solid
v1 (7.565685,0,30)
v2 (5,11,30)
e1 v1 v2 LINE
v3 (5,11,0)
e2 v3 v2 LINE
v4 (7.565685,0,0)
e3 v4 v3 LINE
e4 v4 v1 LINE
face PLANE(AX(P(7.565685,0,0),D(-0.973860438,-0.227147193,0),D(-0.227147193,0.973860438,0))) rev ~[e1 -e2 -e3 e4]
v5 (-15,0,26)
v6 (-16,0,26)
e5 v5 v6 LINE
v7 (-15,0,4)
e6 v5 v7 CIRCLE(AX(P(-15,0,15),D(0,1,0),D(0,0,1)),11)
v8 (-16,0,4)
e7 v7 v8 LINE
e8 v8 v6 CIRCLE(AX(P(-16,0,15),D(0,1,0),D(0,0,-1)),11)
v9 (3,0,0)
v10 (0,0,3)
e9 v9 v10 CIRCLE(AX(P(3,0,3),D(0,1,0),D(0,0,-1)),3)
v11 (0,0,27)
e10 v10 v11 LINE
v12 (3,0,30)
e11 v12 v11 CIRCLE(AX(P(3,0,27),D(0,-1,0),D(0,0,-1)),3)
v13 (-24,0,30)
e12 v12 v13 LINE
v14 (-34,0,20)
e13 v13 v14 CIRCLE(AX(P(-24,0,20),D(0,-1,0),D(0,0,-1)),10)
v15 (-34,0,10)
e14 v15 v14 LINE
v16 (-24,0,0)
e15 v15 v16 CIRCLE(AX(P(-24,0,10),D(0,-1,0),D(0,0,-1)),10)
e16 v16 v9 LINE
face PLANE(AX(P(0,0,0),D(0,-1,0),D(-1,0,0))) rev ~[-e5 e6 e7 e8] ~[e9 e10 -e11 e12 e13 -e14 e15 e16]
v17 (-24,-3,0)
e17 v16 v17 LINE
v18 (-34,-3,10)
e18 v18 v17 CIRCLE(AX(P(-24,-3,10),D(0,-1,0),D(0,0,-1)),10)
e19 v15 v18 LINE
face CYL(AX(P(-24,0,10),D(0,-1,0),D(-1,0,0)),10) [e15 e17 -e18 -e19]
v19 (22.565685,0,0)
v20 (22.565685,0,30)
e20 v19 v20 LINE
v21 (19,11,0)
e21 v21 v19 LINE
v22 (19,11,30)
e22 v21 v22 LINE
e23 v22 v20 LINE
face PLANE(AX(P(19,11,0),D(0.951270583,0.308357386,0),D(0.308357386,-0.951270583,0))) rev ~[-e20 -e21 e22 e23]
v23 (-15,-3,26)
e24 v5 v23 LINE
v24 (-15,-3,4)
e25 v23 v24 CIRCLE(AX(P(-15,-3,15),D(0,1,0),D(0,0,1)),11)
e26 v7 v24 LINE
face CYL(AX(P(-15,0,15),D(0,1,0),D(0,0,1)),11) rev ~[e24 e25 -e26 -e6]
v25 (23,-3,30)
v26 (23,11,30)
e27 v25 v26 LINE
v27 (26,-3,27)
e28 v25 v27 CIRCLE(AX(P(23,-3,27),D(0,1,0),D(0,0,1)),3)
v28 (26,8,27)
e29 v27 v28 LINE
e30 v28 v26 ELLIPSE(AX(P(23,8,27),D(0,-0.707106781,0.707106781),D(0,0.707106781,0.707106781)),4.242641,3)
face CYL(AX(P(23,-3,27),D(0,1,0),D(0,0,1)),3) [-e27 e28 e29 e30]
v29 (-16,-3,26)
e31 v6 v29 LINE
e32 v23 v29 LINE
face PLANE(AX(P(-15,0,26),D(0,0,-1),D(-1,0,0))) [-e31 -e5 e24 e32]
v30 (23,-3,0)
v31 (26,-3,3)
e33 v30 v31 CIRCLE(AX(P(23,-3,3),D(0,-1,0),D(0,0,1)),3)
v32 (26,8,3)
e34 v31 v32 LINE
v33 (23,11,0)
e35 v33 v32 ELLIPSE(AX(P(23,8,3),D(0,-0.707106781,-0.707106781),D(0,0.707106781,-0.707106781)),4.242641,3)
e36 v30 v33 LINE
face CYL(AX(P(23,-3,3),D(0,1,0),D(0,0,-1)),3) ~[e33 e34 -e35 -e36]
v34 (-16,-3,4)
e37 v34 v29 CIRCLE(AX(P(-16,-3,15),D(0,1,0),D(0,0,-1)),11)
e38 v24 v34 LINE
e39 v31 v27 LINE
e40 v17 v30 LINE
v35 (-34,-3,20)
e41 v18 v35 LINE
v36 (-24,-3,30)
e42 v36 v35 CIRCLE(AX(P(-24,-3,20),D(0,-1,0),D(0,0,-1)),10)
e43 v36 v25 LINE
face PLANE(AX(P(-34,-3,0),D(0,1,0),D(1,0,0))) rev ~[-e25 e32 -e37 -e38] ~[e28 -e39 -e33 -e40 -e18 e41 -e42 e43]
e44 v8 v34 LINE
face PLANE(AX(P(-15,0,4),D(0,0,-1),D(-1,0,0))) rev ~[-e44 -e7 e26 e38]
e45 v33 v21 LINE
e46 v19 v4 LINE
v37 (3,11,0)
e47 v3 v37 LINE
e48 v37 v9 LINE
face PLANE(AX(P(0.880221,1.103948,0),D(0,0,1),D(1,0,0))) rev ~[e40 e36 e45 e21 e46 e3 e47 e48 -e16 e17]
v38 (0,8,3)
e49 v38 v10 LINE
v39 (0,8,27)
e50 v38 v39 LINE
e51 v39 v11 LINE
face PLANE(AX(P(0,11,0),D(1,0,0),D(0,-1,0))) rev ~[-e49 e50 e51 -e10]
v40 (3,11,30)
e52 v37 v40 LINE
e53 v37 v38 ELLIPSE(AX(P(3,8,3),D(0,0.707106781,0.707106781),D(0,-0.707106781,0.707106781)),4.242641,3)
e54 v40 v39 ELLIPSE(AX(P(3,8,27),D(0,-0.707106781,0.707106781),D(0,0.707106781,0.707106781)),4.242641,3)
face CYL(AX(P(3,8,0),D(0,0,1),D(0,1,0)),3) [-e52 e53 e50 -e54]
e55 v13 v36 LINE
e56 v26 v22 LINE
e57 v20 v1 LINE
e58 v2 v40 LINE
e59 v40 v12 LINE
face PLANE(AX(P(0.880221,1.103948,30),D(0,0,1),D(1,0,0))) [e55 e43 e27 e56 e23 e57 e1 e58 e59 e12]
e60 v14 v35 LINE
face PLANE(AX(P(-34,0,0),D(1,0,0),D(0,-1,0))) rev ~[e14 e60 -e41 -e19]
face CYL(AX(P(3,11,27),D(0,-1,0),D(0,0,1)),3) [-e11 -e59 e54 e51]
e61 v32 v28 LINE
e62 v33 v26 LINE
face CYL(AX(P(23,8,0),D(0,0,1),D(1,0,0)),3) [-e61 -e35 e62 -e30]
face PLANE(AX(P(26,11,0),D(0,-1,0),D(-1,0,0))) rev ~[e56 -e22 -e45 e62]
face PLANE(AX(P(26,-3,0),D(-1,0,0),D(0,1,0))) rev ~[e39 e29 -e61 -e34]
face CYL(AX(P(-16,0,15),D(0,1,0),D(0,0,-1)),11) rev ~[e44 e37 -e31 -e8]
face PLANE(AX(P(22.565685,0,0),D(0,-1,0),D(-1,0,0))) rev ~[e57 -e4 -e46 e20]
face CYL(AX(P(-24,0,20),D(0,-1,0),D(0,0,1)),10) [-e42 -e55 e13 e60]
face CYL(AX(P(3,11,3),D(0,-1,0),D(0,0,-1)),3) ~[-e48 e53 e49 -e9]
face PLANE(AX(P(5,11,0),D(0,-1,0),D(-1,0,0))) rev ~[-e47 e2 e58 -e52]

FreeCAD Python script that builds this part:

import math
import FreeCAD as App
import Part
import Sketcher
Q = App.Units.Quantity


def edges_at(feature, points):
    """Names of the edges that pass closest to the given points."""
    edges = feature.Shape.Edges
    near = lambda p: min(range(len(edges)), key=lambda i: edges[i].distToShape(Part.Vertex(*p))[0])
    return sorted({f"Edge{near(p) + 1}" for p in points})

doc = App.newDocument("Part")
body = doc.addObject("PartDesign::Body", "Body")

sketch1 = doc.addObject("Sketcher::SketchObject", "Sketch")
body.addObject(sketch1)
sketch1.AttachmentSupport = (doc.XY_Plane, [""])
sketch1.MapMode = "FlatFace"
sketch1.addGeometry([
    Part.LineSegment(App.Vector(-34, -3, 0), App.Vector(26, -3, 0)),
    Part.LineSegment(App.Vector(26, -3, 0), App.Vector(26, 11, 0)),
    Part.LineSegment(App.Vector(26, 11, 0), App.Vector(19, 11, 0)),
    Part.LineSegment(App.Vector(19, 11, 0), App.Vector(22.6, 0, 0)),
    Part.LineSegment(App.Vector(22.6, 0, 0), App.Vector(7.6, 0, 0)),
    Part.LineSegment(App.Vector(7.6, 0, 0), App.Vector(5, 11, 0)),
    Part.LineSegment(App.Vector(5, 11, 0), App.Vector(0, 11, 0)),
    Part.LineSegment(App.Vector(0, 11, 0), App.Vector(0, 0, 0)),
    Part.LineSegment(App.Vector(0, 0, 0), App.Vector(-34, 0, 0)),
    Part.LineSegment(App.Vector(-34, 0, 0), App.Vector(-34, -3, 0)),
], False)
sketch1.addConstraint([
    Sketcher.Constraint("Coincident", 0, 2, 1, 1),
    Sketcher.Constraint("Coincident", 1, 2, 2, 1),
    Sketcher.Constraint("Coincident", 2, 2, 3, 1),
    Sketcher.Constraint("Coincident", 3, 2, 4, 1),
    Sketcher.Constraint("Coincident", 4, 2, 5, 1),
    Sketcher.Constraint("Coincident", 5, 2, 6, 1),
    Sketcher.Constraint("Coincident", 6, 2, 7, 1),
    Sketcher.Constraint("Coincident", 7, 2, 8, 1),
    Sketcher.Constraint("Coincident", 8, 2, 9, 1),
    Sketcher.Constraint("Coincident", 9, 2, 0, 1),
    Sketcher.Constraint("Horizontal", 0),
    Sketcher.Constraint("Vertical", 1),
    Sketcher.Constraint("Horizontal", 2),
    Sketcher.Constraint("Horizontal", 4),
    Sketcher.Constraint("Horizontal", 6),
    Sketcher.Constraint("Vertical", 7),
    Sketcher.Constraint("Horizontal", 8),
    Sketcher.Constraint("Vertical", 9),
    Sketcher.Constraint("Coincident", 7, 2, -1, 1),
    Sketcher.Constraint("PointOnObject", 3, 2, -1),
    Sketcher.Constraint("Horizontal", 2, 2, 5, 2),
    Sketcher.Constraint("DistanceX", 0, 1, 0, 2, Q("60 mm")),
    Sketcher.Constraint("DistanceX", 2, 2, 2, 1, Q("7 mm")),
    Sketcher.Constraint("DistanceX", 4, 2, 4, 1, Q("15 mm")),
    Sketcher.Constraint("DistanceX", 6, 2, 6, 1, Q("5 mm")),
    Sketcher.Constraint("DistanceX", 8, 2, 8, 1, Q("34 mm")),
    Sketcher.Constraint("DistanceY", 1, 1, 1, 2, Q("14 mm")),
    Sketcher.Constraint("DistanceY", 7, 2, 7, 1, Q("11 mm")),
    Sketcher.Constraint("Distance", 3, Q("11.563482 mm")),
])
pad1 = doc.addObject("PartDesign::Pad", "Pad")
body.addObject(pad1)
pad1.Profile = sketch1
pad1.Length = 30

sketch2 = doc.addObject("Sketcher::SketchObject", "Sketch001")
body.addObject(sketch2)
sketch2.AttachmentSupport = (doc.XZ_Plane, [""])
sketch2.MapMode = "FlatFace"
sketch2.addGeometry([
    Part.ArcOfCircle(Part.Circle(App.Vector(-15, 15, 0), App.Vector(0, 0, 1), 11), math.radians(-90), math.radians(90)),
    Part.LineSegment(App.Vector(-15, 4, 0), App.Vector(-16, 4, 0)),
    Part.ArcOfCircle(Part.Circle(App.Vector(-16, 15, 0), App.Vector(0, 0, 1), 11), math.radians(90), math.radians(270)),
    Part.LineSegment(App.Vector(-16, 26, 0), App.Vector(-15, 26, 0)),
], False)
sketch2.addConstraint([
    Sketcher.Constraint("Tangent", 0, 1, 1, 1),
    Sketcher.Constraint("Tangent", 1, 2, 2, 2),
    Sketcher.Constraint("Tangent", 2, 1, 3, 1),
    Sketcher.Constraint("Tangent", 3, 2, 0, 2),
    Sketcher.Constraint("Horizontal", 1),
    Sketcher.Constraint("Horizontal", 3),
    Sketcher.Constraint("Radius", 0, Q("11 mm")),
    Sketcher.Constraint("DistanceX", 1, 2, 1, 1, Q("1 mm")),
    Sketcher.Constraint("DistanceX", 0, 3, -1, 1, Q("15 mm")),
    Sketcher.Constraint("DistanceY", -1, 1, 0, 3, Q("15 mm")),
])
pocket1 = doc.addObject("PartDesign::Pocket", "Pocket")
body.addObject(pocket1)
pocket1.Profile = sketch2
pocket1.Length = 5
pocket1.Reversed = True
doc.recompute()

fillet = doc.addObject("PartDesign::Fillet", "Fillet")
body.addObject(fillet)
fillet.Base = (pocket1, edges_at(pocket1, [
    (0, 11, 15),
    (0, 5.5, 30),
    (0, 5.5, 0),
    (26, 4, 0),
    (26, 11, 15),
    (26, 4, 30),
]))
fillet.Radius = 3
doc.recompute()

fillet2 = doc.addObject("PartDesign::Fillet", "Fillet001")
body.addObject(fillet2)
fillet2.Base = (fillet, edges_at(fillet, [(-34, -1.5, 0), (-34, -1.5, 30)]))
fillet2.Radius = 10

doc.recompute()
